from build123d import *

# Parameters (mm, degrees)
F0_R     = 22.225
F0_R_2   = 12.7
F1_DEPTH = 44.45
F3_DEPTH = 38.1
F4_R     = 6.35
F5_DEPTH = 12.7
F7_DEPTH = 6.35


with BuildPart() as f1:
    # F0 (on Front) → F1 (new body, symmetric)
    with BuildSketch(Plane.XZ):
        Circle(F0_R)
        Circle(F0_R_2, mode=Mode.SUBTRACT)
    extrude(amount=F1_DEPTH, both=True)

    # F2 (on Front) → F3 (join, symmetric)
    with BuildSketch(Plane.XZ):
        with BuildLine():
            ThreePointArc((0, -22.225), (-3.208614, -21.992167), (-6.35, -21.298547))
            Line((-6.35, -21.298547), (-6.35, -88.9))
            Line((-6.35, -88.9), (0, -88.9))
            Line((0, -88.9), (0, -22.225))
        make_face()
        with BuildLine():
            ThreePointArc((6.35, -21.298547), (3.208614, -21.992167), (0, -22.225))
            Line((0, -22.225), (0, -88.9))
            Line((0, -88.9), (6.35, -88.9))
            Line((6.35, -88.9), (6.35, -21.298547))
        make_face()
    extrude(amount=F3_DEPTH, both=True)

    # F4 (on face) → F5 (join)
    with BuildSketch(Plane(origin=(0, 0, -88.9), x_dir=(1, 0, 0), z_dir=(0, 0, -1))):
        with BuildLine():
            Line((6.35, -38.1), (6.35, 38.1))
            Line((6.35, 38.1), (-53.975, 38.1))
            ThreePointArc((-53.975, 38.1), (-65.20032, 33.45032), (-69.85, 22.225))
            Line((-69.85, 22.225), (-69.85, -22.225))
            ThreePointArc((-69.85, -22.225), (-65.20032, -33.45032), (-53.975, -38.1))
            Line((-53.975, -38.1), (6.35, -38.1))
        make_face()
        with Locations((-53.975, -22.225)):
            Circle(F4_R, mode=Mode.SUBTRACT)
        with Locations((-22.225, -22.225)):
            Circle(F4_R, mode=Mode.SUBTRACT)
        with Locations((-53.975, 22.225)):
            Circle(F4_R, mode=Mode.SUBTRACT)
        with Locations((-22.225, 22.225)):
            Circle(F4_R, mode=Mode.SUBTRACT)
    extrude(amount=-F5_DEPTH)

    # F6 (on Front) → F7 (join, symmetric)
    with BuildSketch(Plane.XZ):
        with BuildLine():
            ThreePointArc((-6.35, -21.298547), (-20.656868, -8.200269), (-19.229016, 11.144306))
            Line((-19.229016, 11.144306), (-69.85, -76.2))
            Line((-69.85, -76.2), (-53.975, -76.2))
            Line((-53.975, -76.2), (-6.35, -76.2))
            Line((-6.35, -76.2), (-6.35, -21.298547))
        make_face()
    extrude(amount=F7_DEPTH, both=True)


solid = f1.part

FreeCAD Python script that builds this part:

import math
import FreeCAD as App
import Part
import Sketcher
from FreeCAD import Vector
Q = App.Units.Quantity

doc = App.newDocument("Part")
body = doc.addObject("PartDesign::Body", "Body")

sketch1 = doc.addObject("Sketcher::SketchObject", "Sketch")
body.addObject(sketch1)
sketch1.AttachmentSupport = (doc.XZ_Plane, [""])
sketch1.MapMode = "FlatFace"
sketch1.addGeometry(Part.Circle(Vector(0, 0, 0), Vector(0, 0, 1), 22.225), False)
sketch1.addGeometry(Part.Circle(Vector(0, 0, 0), Vector(0, 0, 1), 12.7), False)
sketch1.addConstraint(Sketcher.Constraint("Coincident", 0, 3, -1, 1))
sketch1.addConstraint(Sketcher.Constraint("Coincident", 1, 3, -1, 1))
sketch1.addConstraint(Sketcher.Constraint("Diameter", 1, Q("1 in")))
sketch1.addConstraint(Sketcher.Constraint("Diameter", 0, Q("1.75 in")))
pad1 = doc.addObject("PartDesign::Pad", "Pad")
body.addObject(pad1)
pad1.Profile = sketch1
pad1.Length = Q("3.5 in")
pad1.Midplane = True

sketch2 = doc.addObject("Sketcher::SketchObject", "Sketch001")
body.addObject(sketch2)
sketch2.AttachmentSupport = (doc.XZ_Plane, [""])
sketch2.MapMode = "FlatFace"
sketch2.addGeometry(Part.ArcOfCircle(Part.Circle(Vector(0.000002, 0.000003, 0), Vector(0, 0, 1), 22.225003), math.radians(-106.601553), math.radians(-90.000005)), False)
sketch2.addGeometry(Part.LineSegment(Vector(-6.35, -21.298547, 0), Vector(-6.35, -88.9, 0)), False)
sketch2.addGeometry(Part.LineSegment(Vector(-6.35, -88.9, 0), Vector(6.35, -88.9, 0)), False)
sketch2.addGeometry(Part.LineSegment(Vector(6.35, -88.9, 0), Vector(6.35, -21.298547, 0)), False)
sketch2.addGeometry(Part.ArcOfCircle(Part.Circle(Vector(-0.000002, 0.000003, 0), Vector(0, 0, 1), 22.225003), math.radians(-89.999995), math.radians(-73.398447)), False)
sketch2.addConstraint(Sketcher.Constraint("Coincident", 0, 1, 1, 1))
sketch2.addConstraint(Sketcher.Constraint("Coincident", 1, 2, 2, 1))
sketch2.addConstraint(Sketcher.Constraint("Coincident", 2, 2, 3, 1))
sketch2.addConstraint(Sketcher.Constraint("Coincident", 3, 2, 4, 2))
sketch2.addConstraint(Sketcher.Constraint("Tangent", 4, 1, 0, 2))
sketch2.addConstraint(Sketcher.Constraint("Vertical", 1))
sketch2.addConstraint(Sketcher.Constraint("Horizontal", 2))
sketch2.addConstraint(Sketcher.Constraint("Vertical", 3))
sketch2.addConstraint(Sketcher.Constraint("Coincident", 0, 3, -1, 1))
sketch2.addConstraint(Sketcher.Constraint("Equal", 0, 4))
sketch2.addConstraint(Sketcher.Constraint("PointOnObject", 4, 1, -2))
sketch2.addConstraint(Sketcher.Constraint("Horizontal", 0, 1, 3, 2))
sketch2.addConstraint(Sketcher.Constraint("DistanceX", 2, 1, 2, 2, Q("0.5 in")))
sketch2.addConstraint(Sketcher.Constraint("Radius", 0, Q("0.8750001 in")))
sketch2.addConstraint(Sketcher.Constraint("DistanceY", 1, 2, -1, 1, Q("3.5 in")))
pad2 = doc.addObject("PartDesign::Pad", "Pad001")
body.addObject(pad2)
pad2.Profile = sketch2
pad2.Length = Q("3 in")
pad2.Midplane = True

sketch3 = doc.addObject("Sketcher::SketchObject", "Sketch002")
body.addObject(sketch3)
sketch3.AttachmentSupport = (doc.XY_Plane, [""])
sketch3.MapMode = "FlatFace"
sketch3.AttachmentOffset = App.Placement(Vector(0, 0, -3.5 * 25.4), App.Rotation())
sketch3.addGeometry(Part.LineSegment(Vector(6.35, 38.1, 0), Vector(6.35, -38.1, 0)), False)
sketch3.addGeometry(Part.LineSegment(Vector(6.35, -38.1, 0), Vector(-53.975, -38.1, 0)), False)
sketch3.addGeometry(Part.ArcOfCircle(Part.Circle(Vector(-53.974999, -22.224999, 0), Vector(0, 0, 1), 15.875001), math.radians(-179.999998), math.radians(-90.000002)), False)
sketch3.addGeometry(Part.LineSegment(Vector(-69.85, -22.225, 0), Vector(-69.85, 22.225, 0)), False)
sketch3.addGeometry(Part.ArcOfCircle(Part.Circle(Vector(-53.974999, 22.224999, 0), Vector(0, 0, 1), 15.875001), math.radians(90.000002), math.radians(179.999998)), False)
sketch3.addGeometry(Part.LineSegment(Vector(-53.975, 38.1, 0), Vector(6.35, 38.1, 0)), False)
sketch3.addGeometry(Part.Circle(Vector(-53.975, 22.225, 0), Vector(0, 0, 1), 6.35), False)
sketch3.addGeometry(Part.Circle(Vector(-22.225, 22.225, 0), Vector(0, 0, 1), 6.35), False)
sketch3.addGeometry(Part.Circle(Vector(-53.975, -22.225, 0), Vector(0, 0, 1), 6.35), False)
sketch3.addGeometry(Part.Circle(Vector(-22.225, -22.225, 0), Vector(0, 0, 1), 6.35), False)
sketch3.addConstraint(Sketcher.Constraint("Coincident", 0, 2, 1, 1))
sketch3.addConstraint(Sketcher.Constraint("Tangent", 1, 2, 2, 2))
sketch3.addConstraint(Sketcher.Constraint("Tangent", 2, 1, 3, 1))
sketch3.addConstraint(Sketcher.Constraint("Tangent", 3, 2, 4, 2))
sketch3.addConstraint(Sketcher.Constraint("Tangent", 4, 1, 5, 1))
sketch3.addConstraint(Sketcher.Constraint("Coincident", 5, 2, 0, 1))
sketch3.addConstraint(Sketcher.Constraint("Vertical", 0))
sketch3.addConstraint(Sketcher.Constraint("Horizontal", 1))
sketch3.addConstraint(Sketcher.Constraint("Vertical", 3))
sketch3.addConstraint(Sketcher.Constraint("Horizontal", 5))
sketch3.addConstraint(Sketcher.Constraint("Coincident", 6, 3, 4, 3))
sketch3.addConstraint(Sketcher.Constraint("Coincident", 8, 3, 2, 3))
sketch3.addConstraint(Sketcher.Constraint("Equal", 2, 4))
sketch3.addConstraint(Sketcher.Constraint("Equal", 6, 7))
sketch3.addConstraint(Sketcher.Constraint("Equal", 7, 8))
sketch3.addConstraint(Sketcher.Constraint("Equal", 8, 9))
sketch3.addConstraint(Sketcher.Constraint("Symmetric", 7, 3, 9, 3, -1))
sketch3.addConstraint(Sketcher.Constraint("Horizontal", 6, 3, 7, 3))
sketch3.addConstraint(Sketcher.Constraint("Horizontal", 8, 3, 9, 3))
sketch3.addConstraint(Sketcher.Constraint("Diameter", 6, Q("0.5 in")))
sketch3.addConstraint(Sketcher.Constraint("DistanceY", 0, 2, 0, 1, Q("3 in")))
sketch3.addConstraint(Sketcher.Constraint("Radius", 2, Q("0.625 in")))
sketch3.addConstraint(Sketcher.Constraint("DistanceX", 1, 2, 1, 1, Q("2.375 in")))
sketch3.addConstraint(Sketcher.Constraint("DistanceX", -1, 1, 0, 2, Q("0.25 in")))
sketch3.addConstraint(Sketcher.Constraint("DistanceX", 4, 3, 7, 3, Q("1.25 in")))
pad3 = doc.addObject("PartDesign::Pad", "Pad002")
body.addObject(pad3)
pad3.Profile = sketch3
pad3.Length = Q("0.5 in")

sketch4 = doc.addObject("Sketcher::SketchObject", "Sketch003")
body.addObject(sketch4)
sketch4.AttachmentSupport = (doc.XZ_Plane, [""])
sketch4.MapMode = "FlatFace"
sketch4.addGeometry(Part.ArcOfCircle(Part.Circle(Vector(0, 0, 0), Vector(0, 0, 1), 22.225), math.radians(149.905274), math.radians(253.39845)), False)
sketch4.addGeometry(Part.LineSegment(Vector(-19.229016, 11.144306, 0), Vector(-69.85, -76.2, 0)), False)
sketch4.addGeometry(Part.LineSegment(Vector(-69.85, -76.2, 0), Vector(-6.35, -76.2, 0)), False)
sketch4.addGeometry(Part.LineSegment(Vector(-6.35, -76.2, 0), Vector(-6.35, -21.298547, 0)), False)
sketch4.addConstraint(Sketcher.Constraint("Tangent", 0, 1, 1, 1))
sketch4.addConstraint(Sketcher.Constraint("Coincident", 1, 2, 2, 1))
sketch4.addConstraint(Sketcher.Constraint("Coincident", 2, 2, 3, 1))
sketch4.addConstraint(Sketcher.Constraint("Coincident", 3, 2, 0, 2))
sketch4.addConstraint(Sketcher.Constraint("Horizontal", 2))
sketch4.addConstraint(Sketcher.Constraint("Vertical", 3))
sketch4.addConstraint(Sketcher.Constraint("Coincident", 0, 3, -1, 1))
sketch4.addConstraint(Sketcher.Constraint("DistanceX", 2, 1, 2, 2, Q("2.5 in")))
sketch4.addConstraint(Sketcher.Constraint("DistanceY", 1, 2, -1, 1, Q("3 in")))
sketch4.addConstraint(Sketcher.Constraint("Radius", 0, Q("0.875 in")))
sketch4.addConstraint(Sketcher.Constraint("DistanceX", 1, 2, -1, 1, Q("2.75 in")))
pad4 = doc.addObject("PartDesign::Pad", "Pad003")
body.addObject(pad4)
pad4.Profile = sketch4
pad4.Length = Q("0.5 in")
pad4.Midplane = True

doc.recompute()
